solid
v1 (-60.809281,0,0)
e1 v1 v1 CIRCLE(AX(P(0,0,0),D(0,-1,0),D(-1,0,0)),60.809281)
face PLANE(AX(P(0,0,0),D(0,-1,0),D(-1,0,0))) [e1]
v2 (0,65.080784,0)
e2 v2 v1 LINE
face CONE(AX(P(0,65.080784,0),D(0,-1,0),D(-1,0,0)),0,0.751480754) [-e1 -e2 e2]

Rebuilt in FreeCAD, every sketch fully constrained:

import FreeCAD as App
import Part
import Sketcher


def add_polygon(sketch, points):
    """Adds a closed chain of lines whose ends are joined by coincident constraints."""
    first, n = sketch.GeometryCount, len(points)
    for a, b in zip(points, points[1:] + points[:1]):
        sketch.addGeometry(Part.LineSegment(App.Vector(*a, 0), App.Vector(*b, 0)), False)
    for i in range(n):
        sketch.addConstraint(Sketcher.Constraint("Coincident", first + i, 2, first + (i + 1) % n, 1))

doc = App.newDocument("Part")
params = doc.addObject("Spreadsheet::Sheet", "Params")
for row, (alias, value) in enumerate([
    ("revolution_angle", "360 deg"),
], start=1):
    params.set(f"A{row}", alias)
    params.set(f"B{row}", "=" + value)
    params.setAlias(f"B{row}", alias)

body = doc.addObject("PartDesign::Body", "Body")

# Sketch on XY plane
sketch1 = body.newObject("Sketcher::SketchObject", "Sketch")
sketch1.AttachmentSupport = (doc.getObject("XY_Plane"), [""])
sketch1.MapMode = "FlatFace"
add_polygon(sketch1, [(-60.809281, 0), (0, 0), (0, 65.080784)])  # lines 0-2
sketch1.addConstraint([
    Sketcher.Constraint("Horizontal", 0),
    Sketcher.Constraint("Vertical", 1),
    Sketcher.Constraint("Coincident", 0, 2, -1, 1),
    Sketcher.Constraint("DistanceX", 0, 1, 0, 2, 60.809281),
    Sketcher.Constraint("DistanceY", 1, 1, 1, 2, 65.080784),
])
revolution = body.newObject("PartDesign::Revolution", "Revolution")
revolution.Profile = sketch1
revolution.ReferenceAxis = (sketch1, ["V_Axis"])
revolution.setExpression("Angle", "Params.revolution_angle")

doc.recompute()
